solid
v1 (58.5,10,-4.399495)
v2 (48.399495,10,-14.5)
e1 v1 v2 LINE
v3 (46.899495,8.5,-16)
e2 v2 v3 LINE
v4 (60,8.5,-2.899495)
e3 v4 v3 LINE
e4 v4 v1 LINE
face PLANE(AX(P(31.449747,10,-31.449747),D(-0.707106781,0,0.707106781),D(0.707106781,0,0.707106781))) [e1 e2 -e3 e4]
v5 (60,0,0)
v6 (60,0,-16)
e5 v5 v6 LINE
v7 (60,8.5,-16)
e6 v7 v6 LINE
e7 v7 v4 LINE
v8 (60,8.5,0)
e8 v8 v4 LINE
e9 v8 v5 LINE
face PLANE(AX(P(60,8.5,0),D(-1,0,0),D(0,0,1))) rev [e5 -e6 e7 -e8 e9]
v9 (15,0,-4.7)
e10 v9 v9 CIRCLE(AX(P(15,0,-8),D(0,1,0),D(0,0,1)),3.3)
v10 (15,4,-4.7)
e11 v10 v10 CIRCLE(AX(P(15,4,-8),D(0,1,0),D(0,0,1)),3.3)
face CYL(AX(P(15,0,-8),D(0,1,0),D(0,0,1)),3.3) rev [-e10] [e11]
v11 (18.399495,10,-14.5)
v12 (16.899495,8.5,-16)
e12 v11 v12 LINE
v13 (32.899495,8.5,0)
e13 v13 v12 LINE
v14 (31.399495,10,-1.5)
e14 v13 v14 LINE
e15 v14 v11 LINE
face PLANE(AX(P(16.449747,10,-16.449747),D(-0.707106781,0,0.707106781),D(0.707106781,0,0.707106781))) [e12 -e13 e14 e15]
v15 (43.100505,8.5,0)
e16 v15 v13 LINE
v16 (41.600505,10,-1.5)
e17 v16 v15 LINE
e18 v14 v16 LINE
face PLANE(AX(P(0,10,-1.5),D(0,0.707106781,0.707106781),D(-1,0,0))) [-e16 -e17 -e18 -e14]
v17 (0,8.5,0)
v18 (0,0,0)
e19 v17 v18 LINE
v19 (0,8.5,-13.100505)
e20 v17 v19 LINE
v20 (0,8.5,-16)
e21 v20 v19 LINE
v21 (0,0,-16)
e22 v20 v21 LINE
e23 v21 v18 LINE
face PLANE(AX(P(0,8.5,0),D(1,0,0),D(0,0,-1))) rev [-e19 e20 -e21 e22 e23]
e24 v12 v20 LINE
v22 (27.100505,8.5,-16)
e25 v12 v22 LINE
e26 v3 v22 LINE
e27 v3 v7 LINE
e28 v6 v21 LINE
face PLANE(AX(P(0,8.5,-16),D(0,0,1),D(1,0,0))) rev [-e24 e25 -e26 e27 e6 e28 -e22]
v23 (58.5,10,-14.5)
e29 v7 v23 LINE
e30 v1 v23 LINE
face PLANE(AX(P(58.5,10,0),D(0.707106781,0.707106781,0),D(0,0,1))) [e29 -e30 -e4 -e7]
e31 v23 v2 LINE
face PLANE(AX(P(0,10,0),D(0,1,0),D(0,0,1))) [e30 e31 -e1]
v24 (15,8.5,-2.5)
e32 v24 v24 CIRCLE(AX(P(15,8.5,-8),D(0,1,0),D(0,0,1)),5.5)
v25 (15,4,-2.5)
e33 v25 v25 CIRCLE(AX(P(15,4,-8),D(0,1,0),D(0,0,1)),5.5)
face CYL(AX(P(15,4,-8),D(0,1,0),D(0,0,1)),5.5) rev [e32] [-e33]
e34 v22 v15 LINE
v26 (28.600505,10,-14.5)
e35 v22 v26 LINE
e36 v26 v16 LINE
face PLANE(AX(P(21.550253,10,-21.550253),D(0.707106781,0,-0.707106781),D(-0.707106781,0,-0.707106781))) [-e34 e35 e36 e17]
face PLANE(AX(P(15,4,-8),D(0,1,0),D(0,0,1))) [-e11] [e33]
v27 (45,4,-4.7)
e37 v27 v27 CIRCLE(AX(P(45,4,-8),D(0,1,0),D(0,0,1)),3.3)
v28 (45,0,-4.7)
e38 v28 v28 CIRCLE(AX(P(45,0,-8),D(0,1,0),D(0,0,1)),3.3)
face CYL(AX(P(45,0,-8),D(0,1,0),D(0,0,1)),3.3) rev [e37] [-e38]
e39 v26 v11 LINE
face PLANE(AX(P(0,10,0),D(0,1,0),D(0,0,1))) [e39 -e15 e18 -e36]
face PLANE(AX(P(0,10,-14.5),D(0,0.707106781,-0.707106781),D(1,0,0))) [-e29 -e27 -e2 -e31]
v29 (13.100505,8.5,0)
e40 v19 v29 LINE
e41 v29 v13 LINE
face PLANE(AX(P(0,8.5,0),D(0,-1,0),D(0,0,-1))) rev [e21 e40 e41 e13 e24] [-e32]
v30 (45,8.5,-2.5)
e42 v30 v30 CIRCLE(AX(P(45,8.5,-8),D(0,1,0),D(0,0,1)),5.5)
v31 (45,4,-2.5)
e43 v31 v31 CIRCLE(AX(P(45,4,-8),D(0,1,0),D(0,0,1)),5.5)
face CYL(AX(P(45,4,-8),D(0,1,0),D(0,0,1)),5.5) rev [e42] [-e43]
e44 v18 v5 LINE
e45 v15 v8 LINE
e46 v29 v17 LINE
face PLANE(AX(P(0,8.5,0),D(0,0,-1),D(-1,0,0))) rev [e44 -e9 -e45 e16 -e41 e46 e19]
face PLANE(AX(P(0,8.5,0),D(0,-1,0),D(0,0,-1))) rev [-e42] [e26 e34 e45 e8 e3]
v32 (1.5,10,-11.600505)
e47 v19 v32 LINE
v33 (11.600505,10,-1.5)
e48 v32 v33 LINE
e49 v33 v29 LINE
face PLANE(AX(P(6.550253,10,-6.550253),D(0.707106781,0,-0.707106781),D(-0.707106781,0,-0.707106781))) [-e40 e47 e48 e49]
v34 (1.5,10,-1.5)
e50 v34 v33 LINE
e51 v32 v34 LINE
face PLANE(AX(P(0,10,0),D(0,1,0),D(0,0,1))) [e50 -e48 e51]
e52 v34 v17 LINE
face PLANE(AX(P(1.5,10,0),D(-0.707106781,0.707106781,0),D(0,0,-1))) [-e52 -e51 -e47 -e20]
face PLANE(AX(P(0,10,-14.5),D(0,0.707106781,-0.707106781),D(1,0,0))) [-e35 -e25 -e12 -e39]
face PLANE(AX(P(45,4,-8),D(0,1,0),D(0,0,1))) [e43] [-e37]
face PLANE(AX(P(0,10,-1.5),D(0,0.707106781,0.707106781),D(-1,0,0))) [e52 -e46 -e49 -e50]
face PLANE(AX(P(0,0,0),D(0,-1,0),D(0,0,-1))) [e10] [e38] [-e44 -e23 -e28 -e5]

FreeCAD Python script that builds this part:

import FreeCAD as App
import Part
import Sketcher

V = App.Vector


def edges_at(feature, points):
    """Names of the edges that pass closest to the given points."""
    edges = feature.Shape.Edges
    near = lambda p: min(range(len(edges)), key=lambda i: edges[i].distToShape(Part.Vertex(*p))[0])
    return sorted({f"Edge{near(p) + 1}" for p in points})


def add_polygon(sketch, points):
    """Adds a closed chain of lines whose ends are joined by coincident constraints."""
    first, n = sketch.GeometryCount, len(points)
    for a, b in zip(points, points[1:] + points[:1]):
        sketch.addGeometry(Part.LineSegment(App.Vector(*a, 0), App.Vector(*b, 0)), False)
    for i in range(n):
        sketch.addConstraint(Sketcher.Constraint("Coincident", first + i, 2, first + (i + 1) % n, 1))

doc = App.newDocument("Part")
body = doc.addObject("PartDesign::Body", "Body")

sketch1 = doc.addObject("Sketcher::SketchObject", "Sketch")
body.addObject(sketch1)
sketch1.AttachmentSupport = (doc.XZ_Plane, [""])
sketch1.MapMode = "FlatFace"
add_polygon(sketch1, [(0, -16), (0, 0), (60, 0), (60, -16)])
sketch1.addConstraint([
    Sketcher.Constraint("Vertical", 0),
    Sketcher.Constraint("Horizontal", 1),
    Sketcher.Constraint("Vertical", 2),
    Sketcher.Constraint("Horizontal", 3),
    Sketcher.Constraint("Coincident", 0, 2, -1, 1),
    Sketcher.Constraint("DistanceX", 1, 1, 1, 2, 60.0),
    Sketcher.Constraint("DistanceY", 0, 1, 0, 2, 16.0),
])
pad1 = doc.addObject("PartDesign::Pad", "Pad")
body.addObject(pad1)
pad1.Profile = sketch1
pad1.Length = 8.5
pad1.Reversed = True

sketch2 = doc.addObject("Sketcher::SketchObject", "Sketch001")
body.addObject(sketch2)
sketch2.AttachmentSupport = (doc.XZ_Plane, [""])
sketch2.MapMode = "FlatFace"
sketch2.AttachmentOffset = App.Placement(V(0, 0, -8.5), App.Rotation())
sketch2.addGeometry([
    Part.Circle(V(15, -8, 0), V(0, 0, 1), 6),
    Part.Circle(V(45, -8, 0), V(0, 0, 1), 6),
], False)
sketch2.addConstraint([
    Sketcher.Constraint("Equal", 0, 1),
    Sketcher.Constraint("Horizontal", 0, 3, 1, 3),
    Sketcher.Constraint("Diameter", 0, 11.0),
    Sketcher.Constraint("DistanceX", -1, 1, 0, 3, 15.0),
    Sketcher.Constraint("DistanceY", 0, 3, -1, 1, 8.0),
    Sketcher.Constraint("DistanceX", -1, 1, 1, 3, 45.0),
])
pocket1 = doc.addObject("PartDesign::Pocket", "Pocket")
body.addObject(pocket1)
pocket1.Profile = sketch2
pocket1.Length = 4.5
pocket1.Reversed = True

sketch3 = doc.addObject("Sketcher::SketchObject", "Sketch002")
body.addObject(sketch3)
sketch3.AttachmentSupport = (doc.XZ_Plane, [""])
sketch3.MapMode = "FlatFace"
sketch3.AttachmentOffset = App.Placement(V(0, 0, -8.5), App.Rotation())
add_polygon(sketch3, [(0, -13), (0, 0), (13, 0)])
add_polygon(sketch3, [(17, -16), (33, 0), (43, 0), (27, -16)])
add_polygon(sketch3, [(47, -16), (60, -3), (60, -16)])
sketch3.addConstraint([
    Sketcher.Constraint("Vertical", 0),
    Sketcher.Constraint("Horizontal", 1),
    Sketcher.Constraint("Horizontal", 4),
    Sketcher.Constraint("Horizontal", 6),
    Sketcher.Constraint("Vertical", 8),
    Sketcher.Constraint("Horizontal", 9),
    Sketcher.Constraint("Coincident", 0, 2, -1, 1),
    Sketcher.Constraint("PointOnObject", 3, 2, -1),
    Sketcher.Constraint("Parallel", 2, 3),
    Sketcher.Constraint("Parallel", 3, 5),
    Sketcher.Constraint("Parallel", 5, 7),
    Sketcher.Constraint("Horizontal", 6, 2, 8, 2),
    Sketcher.Constraint("Equal", 1, 9),
    Sketcher.Constraint("Equal", 9, 0),
    Sketcher.Constraint("DistanceY", 5, 2, -1, 1, 16.0),
    Sketcher.Constraint("DistanceX", -1, 1, 7, 2, 60.0),
    Sketcher.Constraint("DistanceX", 1, 2, 4, 2, 30.0),
    Sketcher.Constraint("DistanceX", 3, 2, 9, 2, 14.0),
    Sketcher.Constraint("DistanceX", 4, 1, 4, 2, 10.20101),
])
pad2 = doc.addObject("PartDesign::Pad", "Pad001")
body.addObject(pad2)
pad2.Profile = sketch3
pad2.Length = 1.5
pad2.Reversed = True

sketch4 = doc.addObject("Sketcher::SketchObject", "Sketch003")
body.addObject(sketch4)
sketch4.AttachmentSupport = (doc.XZ_Plane, [""])
sketch4.MapMode = "FlatFace"
sketch4.AttachmentOffset = App.Placement(V(0, 0, -4), App.Rotation())
sketch4.addGeometry([
    Part.Circle(V(15, -8, 0), V(0, 0, 1), 3.3),
    Part.Circle(V(45, -8, 0), V(0, 0, 1), 3.3),
], False)
sketch4.addConstraint([
    Sketcher.Constraint("Equal", 0, 1),
    Sketcher.Constraint("Horizontal", 0, 3, 1, 3),
    Sketcher.Constraint("Diameter", 0, 6.6),
    Sketcher.Constraint("DistanceX", -1, 1, 0, 3, 15.0),
    Sketcher.Constraint("DistanceY", 0, 3, -1, 1, 8.0),
    Sketcher.Constraint("DistanceX", -1, 1, 1, 3, 45.0),
])
pocket2 = doc.addObject("PartDesign::Pocket", "Pocket001")
body.addObject(pocket2)
pocket2.Profile = sketch4
pocket2.Type = "ThroughAll"
pocket2.Reversed = True
doc.recompute()

chamfer = doc.addObject("PartDesign::Chamfer", "Chamfer")
body.addObject(chamfer)
chamfer.Base = (pocket2, edges_at(pocket2, [
    (6.55, 10, 0),
    (0, 10, -6.55),
    (22, 10, -16),
    (38, 10, 0),
    (60, 10, -9.45),
    (53.45, 10, -16),
]))
chamfer.Size = 1.5

doc.recompute()
